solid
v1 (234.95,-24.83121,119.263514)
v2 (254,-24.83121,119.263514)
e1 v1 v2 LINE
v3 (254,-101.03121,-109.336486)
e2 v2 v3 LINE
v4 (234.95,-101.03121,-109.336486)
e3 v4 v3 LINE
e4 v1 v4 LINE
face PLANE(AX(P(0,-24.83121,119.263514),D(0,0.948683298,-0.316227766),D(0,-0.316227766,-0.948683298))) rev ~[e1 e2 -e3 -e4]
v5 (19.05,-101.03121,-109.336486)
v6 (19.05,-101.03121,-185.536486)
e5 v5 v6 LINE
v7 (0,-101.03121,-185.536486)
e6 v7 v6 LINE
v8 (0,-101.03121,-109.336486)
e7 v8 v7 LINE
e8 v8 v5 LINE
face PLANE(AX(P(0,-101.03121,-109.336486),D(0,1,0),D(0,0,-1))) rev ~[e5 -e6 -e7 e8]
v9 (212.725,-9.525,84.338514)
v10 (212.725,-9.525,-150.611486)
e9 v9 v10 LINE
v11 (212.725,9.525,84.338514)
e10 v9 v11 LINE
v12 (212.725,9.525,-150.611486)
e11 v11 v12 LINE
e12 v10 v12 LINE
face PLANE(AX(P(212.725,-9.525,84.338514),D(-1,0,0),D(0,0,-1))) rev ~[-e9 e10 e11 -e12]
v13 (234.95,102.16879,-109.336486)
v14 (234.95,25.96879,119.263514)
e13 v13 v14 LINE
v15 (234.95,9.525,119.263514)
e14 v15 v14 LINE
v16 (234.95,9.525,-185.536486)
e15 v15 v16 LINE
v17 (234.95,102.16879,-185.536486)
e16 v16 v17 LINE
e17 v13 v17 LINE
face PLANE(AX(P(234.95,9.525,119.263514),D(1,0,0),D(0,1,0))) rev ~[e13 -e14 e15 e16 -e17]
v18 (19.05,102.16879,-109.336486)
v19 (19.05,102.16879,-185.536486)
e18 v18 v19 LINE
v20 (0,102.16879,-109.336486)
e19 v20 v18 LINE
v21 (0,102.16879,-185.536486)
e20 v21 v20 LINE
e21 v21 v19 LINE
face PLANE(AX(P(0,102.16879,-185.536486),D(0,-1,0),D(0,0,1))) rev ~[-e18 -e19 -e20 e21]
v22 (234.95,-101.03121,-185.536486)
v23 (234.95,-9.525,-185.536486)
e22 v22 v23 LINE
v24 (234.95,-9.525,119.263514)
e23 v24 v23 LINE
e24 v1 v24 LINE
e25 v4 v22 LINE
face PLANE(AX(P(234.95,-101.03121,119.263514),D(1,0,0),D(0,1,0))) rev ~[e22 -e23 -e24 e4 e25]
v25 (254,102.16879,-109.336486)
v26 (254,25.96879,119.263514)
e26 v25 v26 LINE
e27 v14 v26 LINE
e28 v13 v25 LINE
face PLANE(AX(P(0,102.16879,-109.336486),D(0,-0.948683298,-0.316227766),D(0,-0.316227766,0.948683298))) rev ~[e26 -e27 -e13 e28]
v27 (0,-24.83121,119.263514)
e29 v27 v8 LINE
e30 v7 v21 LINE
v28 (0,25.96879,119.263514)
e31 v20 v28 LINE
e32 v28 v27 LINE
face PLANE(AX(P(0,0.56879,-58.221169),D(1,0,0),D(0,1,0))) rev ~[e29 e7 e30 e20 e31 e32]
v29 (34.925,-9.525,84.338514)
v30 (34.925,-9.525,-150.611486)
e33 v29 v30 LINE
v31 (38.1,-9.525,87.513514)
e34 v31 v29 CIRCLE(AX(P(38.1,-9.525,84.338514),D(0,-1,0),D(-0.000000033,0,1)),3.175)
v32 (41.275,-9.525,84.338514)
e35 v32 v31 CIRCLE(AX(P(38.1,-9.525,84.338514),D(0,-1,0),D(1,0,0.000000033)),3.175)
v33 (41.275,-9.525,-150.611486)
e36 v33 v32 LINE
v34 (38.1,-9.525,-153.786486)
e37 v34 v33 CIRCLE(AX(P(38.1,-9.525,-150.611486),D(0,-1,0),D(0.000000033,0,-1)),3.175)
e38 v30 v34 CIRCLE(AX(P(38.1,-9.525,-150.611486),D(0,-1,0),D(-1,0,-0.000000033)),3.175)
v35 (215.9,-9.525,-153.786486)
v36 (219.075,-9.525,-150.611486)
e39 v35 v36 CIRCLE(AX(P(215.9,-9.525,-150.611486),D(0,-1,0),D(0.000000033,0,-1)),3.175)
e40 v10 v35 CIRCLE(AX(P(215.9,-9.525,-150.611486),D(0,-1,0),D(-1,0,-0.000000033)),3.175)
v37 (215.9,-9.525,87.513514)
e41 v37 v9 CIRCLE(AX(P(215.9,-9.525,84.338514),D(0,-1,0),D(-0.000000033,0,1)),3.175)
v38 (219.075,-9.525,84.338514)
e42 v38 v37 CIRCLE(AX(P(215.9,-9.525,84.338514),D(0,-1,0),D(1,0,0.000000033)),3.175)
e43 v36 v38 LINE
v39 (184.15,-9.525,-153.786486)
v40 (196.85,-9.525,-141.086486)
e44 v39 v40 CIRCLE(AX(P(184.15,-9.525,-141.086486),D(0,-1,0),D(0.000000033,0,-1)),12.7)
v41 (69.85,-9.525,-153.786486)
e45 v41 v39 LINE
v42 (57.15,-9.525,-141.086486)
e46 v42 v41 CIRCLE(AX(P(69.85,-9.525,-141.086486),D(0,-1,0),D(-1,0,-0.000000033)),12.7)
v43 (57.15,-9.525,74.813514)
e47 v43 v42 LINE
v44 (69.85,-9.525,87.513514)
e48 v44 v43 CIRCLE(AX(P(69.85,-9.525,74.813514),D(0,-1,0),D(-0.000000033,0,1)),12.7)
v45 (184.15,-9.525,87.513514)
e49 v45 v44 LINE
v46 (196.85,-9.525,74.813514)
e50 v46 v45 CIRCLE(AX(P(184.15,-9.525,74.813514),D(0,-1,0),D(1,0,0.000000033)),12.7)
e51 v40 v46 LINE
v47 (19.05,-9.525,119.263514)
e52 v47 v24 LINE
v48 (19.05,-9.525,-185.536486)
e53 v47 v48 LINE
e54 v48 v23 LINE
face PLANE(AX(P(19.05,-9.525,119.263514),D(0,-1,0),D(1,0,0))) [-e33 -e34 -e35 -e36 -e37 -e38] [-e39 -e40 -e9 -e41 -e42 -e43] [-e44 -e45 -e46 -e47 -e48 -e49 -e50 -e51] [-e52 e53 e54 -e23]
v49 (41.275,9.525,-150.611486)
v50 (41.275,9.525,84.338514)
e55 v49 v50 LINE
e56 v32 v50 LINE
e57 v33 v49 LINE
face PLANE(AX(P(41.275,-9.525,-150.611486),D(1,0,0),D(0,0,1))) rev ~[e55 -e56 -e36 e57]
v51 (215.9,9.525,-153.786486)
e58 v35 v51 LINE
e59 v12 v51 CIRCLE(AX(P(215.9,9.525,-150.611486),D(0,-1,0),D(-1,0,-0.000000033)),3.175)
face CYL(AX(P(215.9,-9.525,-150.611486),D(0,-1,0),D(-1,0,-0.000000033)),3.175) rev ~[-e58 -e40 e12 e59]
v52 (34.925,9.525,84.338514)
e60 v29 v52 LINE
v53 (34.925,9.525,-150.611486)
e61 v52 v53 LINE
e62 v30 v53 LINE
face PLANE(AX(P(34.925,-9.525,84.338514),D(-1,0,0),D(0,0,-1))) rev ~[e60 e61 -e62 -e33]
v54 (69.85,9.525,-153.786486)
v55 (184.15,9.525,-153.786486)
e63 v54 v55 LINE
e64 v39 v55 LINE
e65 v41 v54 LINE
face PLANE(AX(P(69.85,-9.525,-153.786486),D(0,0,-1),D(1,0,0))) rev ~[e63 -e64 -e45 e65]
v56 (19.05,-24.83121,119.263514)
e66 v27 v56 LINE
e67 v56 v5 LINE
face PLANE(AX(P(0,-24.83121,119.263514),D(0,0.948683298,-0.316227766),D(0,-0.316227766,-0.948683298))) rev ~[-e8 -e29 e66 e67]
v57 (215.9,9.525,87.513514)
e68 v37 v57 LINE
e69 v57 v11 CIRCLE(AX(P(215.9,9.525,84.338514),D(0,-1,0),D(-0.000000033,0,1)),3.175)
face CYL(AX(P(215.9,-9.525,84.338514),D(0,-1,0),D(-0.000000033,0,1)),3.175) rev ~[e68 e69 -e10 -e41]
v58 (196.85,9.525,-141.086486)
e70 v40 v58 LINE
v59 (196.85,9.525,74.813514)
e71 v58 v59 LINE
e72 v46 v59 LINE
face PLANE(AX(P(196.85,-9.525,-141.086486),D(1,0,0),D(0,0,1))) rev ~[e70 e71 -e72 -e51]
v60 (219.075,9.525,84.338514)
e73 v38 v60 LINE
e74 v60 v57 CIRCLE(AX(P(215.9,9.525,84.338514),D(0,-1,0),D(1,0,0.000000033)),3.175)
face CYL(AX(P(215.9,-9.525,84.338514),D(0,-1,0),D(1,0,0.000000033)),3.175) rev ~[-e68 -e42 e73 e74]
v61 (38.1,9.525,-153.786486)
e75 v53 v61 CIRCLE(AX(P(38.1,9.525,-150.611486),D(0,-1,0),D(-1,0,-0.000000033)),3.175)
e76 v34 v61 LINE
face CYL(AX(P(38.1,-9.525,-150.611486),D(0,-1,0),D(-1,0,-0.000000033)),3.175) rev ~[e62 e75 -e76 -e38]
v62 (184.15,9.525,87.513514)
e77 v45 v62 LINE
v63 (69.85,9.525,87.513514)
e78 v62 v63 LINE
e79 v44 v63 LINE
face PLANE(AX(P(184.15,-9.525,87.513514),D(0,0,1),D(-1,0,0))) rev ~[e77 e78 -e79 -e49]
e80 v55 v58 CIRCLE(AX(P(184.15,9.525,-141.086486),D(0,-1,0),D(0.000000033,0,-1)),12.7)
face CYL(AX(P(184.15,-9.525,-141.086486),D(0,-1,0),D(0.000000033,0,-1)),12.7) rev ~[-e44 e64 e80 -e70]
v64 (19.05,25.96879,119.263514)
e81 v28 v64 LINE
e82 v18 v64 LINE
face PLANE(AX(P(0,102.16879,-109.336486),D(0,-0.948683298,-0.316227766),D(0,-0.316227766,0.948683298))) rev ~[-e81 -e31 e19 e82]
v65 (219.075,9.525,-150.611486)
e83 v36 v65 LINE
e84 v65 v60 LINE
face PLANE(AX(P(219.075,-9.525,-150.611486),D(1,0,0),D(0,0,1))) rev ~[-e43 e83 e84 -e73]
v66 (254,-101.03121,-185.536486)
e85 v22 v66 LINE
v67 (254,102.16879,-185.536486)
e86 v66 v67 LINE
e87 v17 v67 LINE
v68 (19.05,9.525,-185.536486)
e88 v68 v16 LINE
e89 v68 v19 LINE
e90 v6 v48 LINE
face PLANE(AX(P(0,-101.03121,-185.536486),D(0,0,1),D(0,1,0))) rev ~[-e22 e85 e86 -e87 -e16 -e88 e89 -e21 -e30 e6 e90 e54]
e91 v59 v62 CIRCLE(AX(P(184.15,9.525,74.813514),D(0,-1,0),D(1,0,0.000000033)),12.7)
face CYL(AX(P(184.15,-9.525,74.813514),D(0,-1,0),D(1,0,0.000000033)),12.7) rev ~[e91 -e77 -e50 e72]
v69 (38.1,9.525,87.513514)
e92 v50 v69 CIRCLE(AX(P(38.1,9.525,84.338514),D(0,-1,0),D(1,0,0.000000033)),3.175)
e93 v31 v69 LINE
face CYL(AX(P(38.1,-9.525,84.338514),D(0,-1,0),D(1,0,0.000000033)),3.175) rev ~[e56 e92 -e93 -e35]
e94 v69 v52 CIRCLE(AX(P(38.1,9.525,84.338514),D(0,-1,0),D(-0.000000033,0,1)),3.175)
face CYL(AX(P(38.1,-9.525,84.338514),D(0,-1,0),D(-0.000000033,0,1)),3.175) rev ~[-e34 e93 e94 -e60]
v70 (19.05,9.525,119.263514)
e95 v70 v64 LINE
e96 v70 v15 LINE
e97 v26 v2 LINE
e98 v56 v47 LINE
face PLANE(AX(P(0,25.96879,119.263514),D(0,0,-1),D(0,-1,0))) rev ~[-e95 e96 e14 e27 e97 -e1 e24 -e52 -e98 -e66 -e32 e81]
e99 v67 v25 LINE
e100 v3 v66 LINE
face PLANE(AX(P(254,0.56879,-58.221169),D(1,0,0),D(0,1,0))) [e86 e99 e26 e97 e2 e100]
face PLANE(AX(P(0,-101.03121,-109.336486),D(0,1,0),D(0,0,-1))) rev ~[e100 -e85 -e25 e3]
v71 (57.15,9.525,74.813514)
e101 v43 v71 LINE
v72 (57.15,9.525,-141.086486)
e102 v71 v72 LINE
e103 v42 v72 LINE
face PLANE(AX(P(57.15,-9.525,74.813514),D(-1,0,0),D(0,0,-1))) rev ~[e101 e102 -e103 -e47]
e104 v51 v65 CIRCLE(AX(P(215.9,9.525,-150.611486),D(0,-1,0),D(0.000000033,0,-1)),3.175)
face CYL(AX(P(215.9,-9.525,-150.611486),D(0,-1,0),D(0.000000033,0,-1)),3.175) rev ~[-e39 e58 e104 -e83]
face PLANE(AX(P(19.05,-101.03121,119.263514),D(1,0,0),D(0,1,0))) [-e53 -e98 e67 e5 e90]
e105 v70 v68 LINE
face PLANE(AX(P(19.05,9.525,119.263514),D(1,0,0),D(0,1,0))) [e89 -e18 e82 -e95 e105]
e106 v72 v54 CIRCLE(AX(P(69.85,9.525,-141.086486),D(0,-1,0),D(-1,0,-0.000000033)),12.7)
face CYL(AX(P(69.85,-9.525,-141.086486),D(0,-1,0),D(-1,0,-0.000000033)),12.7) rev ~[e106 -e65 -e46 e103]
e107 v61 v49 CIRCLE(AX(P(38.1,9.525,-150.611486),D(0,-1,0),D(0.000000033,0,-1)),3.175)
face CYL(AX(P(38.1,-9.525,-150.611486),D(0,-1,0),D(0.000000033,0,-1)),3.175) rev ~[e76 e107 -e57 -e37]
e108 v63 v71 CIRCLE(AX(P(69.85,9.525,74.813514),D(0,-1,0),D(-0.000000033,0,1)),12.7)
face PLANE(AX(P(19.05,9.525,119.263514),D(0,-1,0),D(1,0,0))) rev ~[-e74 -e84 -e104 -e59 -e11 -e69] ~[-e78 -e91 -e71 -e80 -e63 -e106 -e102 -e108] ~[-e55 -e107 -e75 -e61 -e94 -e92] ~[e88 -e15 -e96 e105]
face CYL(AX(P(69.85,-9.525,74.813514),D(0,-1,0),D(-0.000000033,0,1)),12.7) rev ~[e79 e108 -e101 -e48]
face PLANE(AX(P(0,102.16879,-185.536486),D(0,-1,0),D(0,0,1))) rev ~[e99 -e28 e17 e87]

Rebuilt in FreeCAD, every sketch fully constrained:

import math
import FreeCAD as App
import Part
import Sketcher

V = App.Vector
Q = App.Units.Quantity

doc = App.newDocument("Part")
body = doc.addObject("PartDesign::Body", "Body")

sketch1 = doc.addObject("Sketcher::SketchObject", "Sketch")
body.addObject(sketch1)
sketch1.AttachmentSupport = (doc.YZ_Plane, [""])
sketch1.MapMode = "FlatFace"
sketch1.addGeometry(Part.LineSegment(V(26, 119, 0), V(-25, 119, 0)), False)
sketch1.addGeometry(Part.LineSegment(V(-25, 119, 0), V(-101, -109, 0)), False)
sketch1.addGeometry(Part.LineSegment(V(-101, -109, 0), V(-101, -186, 0)), False)
sketch1.addGeometry(Part.LineSegment(V(-101, -186, 0), V(102, -186, 0)), False)
sketch1.addGeometry(Part.LineSegment(V(102, -186, 0), V(102, -109, 0)), False)
sketch1.addGeometry(Part.LineSegment(V(102, -109, 0), V(26, 119, 0)), False)
sketch1.addConstraint(Sketcher.Constraint("Coincident", 0, 2, 1, 1))
sketch1.addConstraint(Sketcher.Constraint("Coincident", 1, 2, 2, 1))
sketch1.addConstraint(Sketcher.Constraint("Coincident", 2, 2, 3, 1))
sketch1.addConstraint(Sketcher.Constraint("Coincident", 3, 2, 4, 1))
sketch1.addConstraint(Sketcher.Constraint("Coincident", 4, 2, 5, 1))
sketch1.addConstraint(Sketcher.Constraint("Coincident", 5, 2, 0, 1))
sketch1.addConstraint(Sketcher.Constraint("Horizontal", 0))
sketch1.addConstraint(Sketcher.Constraint("Vertical", 2))
sketch1.addConstraint(Sketcher.Constraint("Horizontal", 3))
sketch1.addConstraint(Sketcher.Constraint("Vertical", 4))
sketch1.addConstraint(Sketcher.Constraint("Horizontal", 1, 2, 4, 2))
sketch1.addConstraint(Sketcher.Constraint("Equal", 1, 5))
sketch1.addConstraint(Sketcher.Constraint("DistanceX", 0, 2, 0, 1, Q("2 in")))
sketch1.addConstraint(Sketcher.Constraint("DistanceX", 3, 1, 3, 2, Q("8 in")))
sketch1.addConstraint(Sketcher.Constraint("DistanceY", 2, 2, 2, 1, Q("3 in")))
sketch1.addConstraint(Sketcher.Constraint("DistanceY", 1, 2, 0, 2, Q("9 in")))
sketch1.addConstraint(Sketcher.Constraint("DistanceX", 0, 2, -1, 1, 24.83121))
sketch1.addConstraint(Sketcher.Constraint("DistanceY", -1, 1, 0, 2, 119.263514))
pad1 = doc.addObject("PartDesign::Pad", "Pad")
body.addObject(pad1)
pad1.Profile = sketch1
pad1.Length = Q("10 in")

sketch2 = doc.addObject("Sketcher::SketchObject", "Sketch001")
body.addObject(sketch2)
sketch2.AttachmentSupport = (doc.XY_Plane, [""])
sketch2.MapMode = "FlatFace"
sketch2.AttachmentOffset = App.Placement(V(0, 0, 119.263514), App.Rotation())
sketch2.addGeometry(Part.LineSegment(V(19, 102, 0), V(19, 10, 0)), False)
sketch2.addGeometry(Part.LineSegment(V(19, 10, 0), V(235, 10, 0)), False)
sketch2.addGeometry(Part.LineSegment(V(235, 10, 0), V(235, 102, 0)), False)
sketch2.addGeometry(Part.LineSegment(V(235, 102, 0), V(19, 102, 0)), False)
sketch2.addGeometry(Part.LineSegment(V(19, -10, 0), V(19, -101, 0)), False)
sketch2.addGeometry(Part.LineSegment(V(19, -101, 0), V(235, -101, 0)), False)
sketch2.addGeometry(Part.LineSegment(V(235, -101, 0), V(235, -10, 0)), False)
sketch2.addGeometry(Part.LineSegment(V(235, -10, 0), V(19, -10, 0)), False)
sketch2.addConstraint(Sketcher.Constraint("Coincident", 0, 2, 1, 1))
sketch2.addConstraint(Sketcher.Constraint("Coincident", 1, 2, 2, 1))
sketch2.addConstraint(Sketcher.Constraint("Coincident", 2, 2, 3, 1))
sketch2.addConstraint(Sketcher.Constraint("Coincident", 3, 2, 0, 1))
sketch2.addConstraint(Sketcher.Constraint("Coincident", 4, 2, 5, 1))
sketch2.addConstraint(Sketcher.Constraint("Coincident", 5, 2, 6, 1))
sketch2.addConstraint(Sketcher.Constraint("Coincident", 6, 2, 7, 1))
sketch2.addConstraint(Sketcher.Constraint("Coincident", 7, 2, 4, 1))
sketch2.addConstraint(Sketcher.Constraint("Vertical", 0))
sketch2.addConstraint(Sketcher.Constraint("Horizontal", 1))
sketch2.addConstraint(Sketcher.Constraint("Vertical", 2))
sketch2.addConstraint(Sketcher.Constraint("Horizontal", 3))
sketch2.addConstraint(Sketcher.Constraint("Vertical", 4))
sketch2.addConstraint(Sketcher.Constraint("Horizontal", 5))
sketch2.addConstraint(Sketcher.Constraint("Vertical", 6))
sketch2.addConstraint(Sketcher.Constraint("Horizontal", 7))
sketch2.addConstraint(Sketcher.Constraint("Symmetric", 1, 2, 6, 2, -1))
sketch2.addConstraint(Sketcher.Constraint("Vertical", 3, 2, 4, 2))
sketch2.addConstraint(Sketcher.Constraint("DistanceX", 1, 1, 1, 2, Q("8.5 in")))
sketch2.addConstraint(Sketcher.Constraint("DistanceY", 4, 2, 3, 2, Q("8 in")))
sketch2.addConstraint(Sketcher.Constraint("DistanceX", -1, 1, 0, 2, Q("0.75 in")))
sketch2.addConstraint(Sketcher.Constraint("DistanceY", 6, 2, 1, 2, Q("0.75 in")))
sketch2.addConstraint(Sketcher.Constraint("DistanceY", 0, 2, 0, 1, 92.64379))
pocket1 = doc.addObject("PartDesign::Pocket", "Pocket")
body.addObject(pocket1)
pocket1.Profile = sketch2
pocket1.Type = "ThroughAll"

sketch3 = doc.addObject("Sketcher::SketchObject", "Sketch002")
body.addObject(sketch3)
sketch3.AttachmentSupport = (doc.XZ_Plane, [""])
sketch3.MapMode = "FlatFace"
sketch3.AttachmentOffset = App.Placement(V(0, 0, 0.375 * 25.4), App.Rotation())
sketch3.addGeometry(Part.LineSegment(V(184, 88, 0), V(70, 88, 0)), False)
sketch3.addGeometry(Part.ArcOfCircle(Part.Circle(V(70, 75, 0), V(0, 0, 1), 13), math.radians(90), math.radians(180)), False)
sketch3.addGeometry(Part.LineSegment(V(57, 75, 0), V(57, -141, 0)), False)
sketch3.addGeometry(Part.ArcOfCircle(Part.Circle(V(70, -141, 0), V(0, 0, 1), 13), math.radians(-180), math.radians(-90)), False)
sketch3.addGeometry(Part.LineSegment(V(70, -154, 0), V(184, -154, 0)), False)
sketch3.addGeometry(Part.ArcOfCircle(Part.Circle(V(184, -141, 0), V(0, 0, 1), 13), math.radians(-90), math.radians(0)), False)
sketch3.addGeometry(Part.LineSegment(V(197, -141, 0), V(197, 75, 0)), False)
sketch3.addGeometry(Part.ArcOfCircle(Part.Circle(V(184, 75, 0), V(0, 0, 1), 13), math.radians(0), math.radians(90)), False)
sketch3.addConstraint(Sketcher.Constraint("Tangent", 0, 2, 1, 1))
sketch3.addConstraint(Sketcher.Constraint("Tangent", 1, 2, 2, 1))
sketch3.addConstraint(Sketcher.Constraint("Tangent", 2, 2, 3, 1))
sketch3.addConstraint(Sketcher.Constraint("Tangent", 3, 2, 4, 1))
sketch3.addConstraint(Sketcher.Constraint("Tangent", 4, 2, 5, 1))
sketch3.addConstraint(Sketcher.Constraint("Tangent", 5, 2, 6, 1))
sketch3.addConstraint(Sketcher.Constraint("Tangent", 6, 2, 7, 1))
sketch3.addConstraint(Sketcher.Constraint("Tangent", 7, 2, 0, 1))
sketch3.addConstraint(Sketcher.Constraint("Horizontal", 0))
sketch3.addConstraint(Sketcher.Constraint("Vertical", 2))
sketch3.addConstraint(Sketcher.Constraint("Horizontal", 4))
sketch3.addConstraint(Sketcher.Constraint("Vertical", 6))
sketch3.addConstraint(Sketcher.Constraint("Equal", 1, 3))
sketch3.addConstraint(Sketcher.Constraint("Equal", 3, 5))
sketch3.addConstraint(Sketcher.Constraint("Equal", 5, 7))
sketch3.addConstraint(Sketcher.Constraint("Radius", 1, Q("0.5 in")))
sketch3.addConstraint(Sketcher.Constraint("DistanceX", 0, 2, 0, 1, Q("4.5 in")))
sketch3.addConstraint(Sketcher.Constraint("DistanceY", 2, 2, 2, 1, Q("8.5 in")))
sketch3.addConstraint(Sketcher.Constraint("DistanceX", -1, 1, 1, 3, Q("2.75 in")))
sketch3.addConstraint(Sketcher.Constraint("DistanceY", -1, 1, 1, 3, 74.813514))
pocket2 = doc.addObject("PartDesign::Pocket", "Pocket001")
body.addObject(pocket2)
pocket2.Profile = sketch3
pocket2.Type = "ThroughAll"

sketch4 = doc.addObject("Sketcher::SketchObject", "Sketch003")
body.addObject(sketch4)
sketch4.AttachmentSupport = (doc.XZ_Plane, [""])
sketch4.MapMode = "FlatFace"
sketch4.AttachmentOffset = App.Placement(V(0, 0, 0.375 * 25.4), App.Rotation())
sketch4.addGeometry(Part.ArcOfCircle(Part.Circle(V(38.1, 84.3, 0), V(0, 0, 1), 3.2), math.radians(90), math.radians(180)), False)
sketch4.addGeometry(Part.LineSegment(V(34.9, 84.3, 0), V(34.9, -150.6, 0)), False)
sketch4.addGeometry(Part.ArcOfCircle(Part.Circle(V(38.1, -150.6, 0), V(0, 0, 1), 3.2), math.radians(-180), math.radians(-90)), False)
sketch4.addGeometry(Part.ArcOfCircle(Part.Circle(V(38.1, -150.6, 0), V(0, 0, 1), 3.2), math.radians(-90), math.radians(0)), False)
sketch4.addGeometry(Part.LineSegment(V(41.3, -150.6, 0), V(41.3, 84.3, 0)), False)
sketch4.addGeometry(Part.ArcOfCircle(Part.Circle(V(38.1, 84.3, 0), V(0, 0, 1), 3.2), math.radians(0), math.radians(90)), False)
sketch4.addGeometry(Part.ArcOfCircle(Part.Circle(V(215.9, -150.6, 0), V(0, 0, 1), 3.2), math.radians(-90), math.radians(0)), False)
sketch4.addGeometry(Part.LineSegment(V(219.1, -150.6, 0), V(219.1, 84.3, 0)), False)
sketch4.addGeometry(Part.ArcOfCircle(Part.Circle(V(215.9, 84.3, 0), V(0, 0, 1), 3.2), math.radians(0), math.radians(90)), False)
sketch4.addGeometry(Part.ArcOfCircle(Part.Circle(V(215.9, 84.3, 0), V(0, 0, 1), 3.2), math.radians(90), math.radians(180)), False)
sketch4.addGeometry(Part.LineSegment(V(212.7, 84.3, 0), V(212.7, -150.6, 0)), False)
sketch4.addGeometry(Part.ArcOfCircle(Part.Circle(V(215.9, -150.6, 0), V(0, 0, 1), 3.2), math.radians(-180), math.radians(-90)), False)
sketch4.addConstraint(Sketcher.Constraint("Tangent", 0, 2, 1, 1))
sketch4.addConstraint(Sketcher.Constraint("Tangent", 1, 2, 2, 1))
sketch4.addConstraint(Sketcher.Constraint("Tangent", 2, 2, 3, 1))
sketch4.addConstraint(Sketcher.Constraint("Tangent", 3, 2, 4, 1))
sketch4.addConstraint(Sketcher.Constraint("Tangent", 4, 2, 5, 1))
sketch4.addConstraint(Sketcher.Constraint("Tangent", 5, 2, 0, 1))
sketch4.addConstraint(Sketcher.Constraint("Tangent", 6, 2, 7, 1))
sketch4.addConstraint(Sketcher.Constraint("Tangent", 7, 2, 8, 1))
sketch4.addConstraint(Sketcher.Constraint("Tangent", 8, 2, 9, 1))
sketch4.addConstraint(Sketcher.Constraint("Tangent", 9, 2, 10, 1))
sketch4.addConstraint(Sketcher.Constraint("Tangent", 10, 2, 11, 1))
sketch4.addConstraint(Sketcher.Constraint("Tangent", 11, 2, 6, 1))
sketch4.addConstraint(Sketcher.Constraint("Vertical", 1))
sketch4.addConstraint(Sketcher.Constraint("Vertical", 4))
sketch4.addConstraint(Sketcher.Constraint("Vertical", 7))
sketch4.addConstraint(Sketcher.Constraint("Vertical", 10))
sketch4.addConstraint(Sketcher.Constraint("Equal", 0, 2))
sketch4.addConstraint(Sketcher.Constraint("Equal", 2, 3))
sketch4.addConstraint(Sketcher.Constraint("Equal", 5, 6))
sketch4.addConstraint(Sketcher.Constraint("Equal", 6, 8))
sketch4.addConstraint(Sketcher.Constraint("Equal", 8, 9))
sketch4.addConstraint(Sketcher.Constraint("Horizontal", 3, 3, 6, 3))
sketch4.addConstraint(Sketcher.Constraint("Horizontal", 5, 3, 8, 3))
sketch4.addConstraint(Sketcher.Constraint("Vertical", 5, 3, 2, 2))
sketch4.addConstraint(Sketcher.Constraint("Vertical", 2, 2, 5, 2))
sketch4.addConstraint(Sketcher.Constraint("Vertical", 11, 3, 8, 2))
sketch4.addConstraint(Sketcher.Constraint("Vertical", 8, 2, 11, 2))
sketch4.addConstraint(Sketcher.Constraint("Radius", 0, Q("0.125 in")))
sketch4.addConstraint(Sketcher.Constraint("DistanceX", 2, 3, 6, 3, Q("7 in")))
sketch4.addConstraint(Sketcher.Constraint("DistanceY", 1, 2, 1, 1, Q("9.25 in")))
sketch4.addConstraint(Sketcher.Constraint("DistanceX", -1, 1, 0, 3, Q("1.5 in")))
sketch4.addConstraint(Sketcher.Constraint("DistanceY", -1, 1, 0, 3, 84.338514))
pocket3 = doc.addObject("PartDesign::Pocket", "Pocket002")
body.addObject(pocket3)
pocket3.Profile = sketch4
pocket3.Type = "ThroughAll"

doc.recompute()
